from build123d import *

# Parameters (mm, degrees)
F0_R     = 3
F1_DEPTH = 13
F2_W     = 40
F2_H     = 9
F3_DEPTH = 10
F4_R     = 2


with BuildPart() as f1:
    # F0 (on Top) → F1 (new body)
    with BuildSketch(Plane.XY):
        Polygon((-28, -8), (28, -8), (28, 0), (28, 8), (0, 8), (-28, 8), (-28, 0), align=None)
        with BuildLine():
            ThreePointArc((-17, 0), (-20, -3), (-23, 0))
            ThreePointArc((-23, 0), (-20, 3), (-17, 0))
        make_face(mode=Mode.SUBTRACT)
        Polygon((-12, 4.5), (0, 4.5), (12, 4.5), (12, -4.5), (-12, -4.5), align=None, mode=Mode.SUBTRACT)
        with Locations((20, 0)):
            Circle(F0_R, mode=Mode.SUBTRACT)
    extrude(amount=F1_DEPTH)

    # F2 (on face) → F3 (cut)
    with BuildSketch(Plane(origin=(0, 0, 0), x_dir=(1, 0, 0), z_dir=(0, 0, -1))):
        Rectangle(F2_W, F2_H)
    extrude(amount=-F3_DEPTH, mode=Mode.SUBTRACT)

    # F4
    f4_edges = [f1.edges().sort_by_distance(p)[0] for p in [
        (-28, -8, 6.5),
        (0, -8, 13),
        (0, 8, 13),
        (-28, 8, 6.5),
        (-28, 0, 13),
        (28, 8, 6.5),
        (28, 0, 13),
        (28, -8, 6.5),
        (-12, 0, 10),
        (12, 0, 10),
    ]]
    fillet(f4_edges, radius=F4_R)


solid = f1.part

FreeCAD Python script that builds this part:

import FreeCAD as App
import Part
import Sketcher

V = App.Vector
Q = App.Units.Quantity


def edges_at(feature, points):
    """Names of the edges that pass closest to the given points."""
    edges = feature.Shape.Edges
    near = lambda p: min(range(len(edges)), key=lambda i: edges[i].distToShape(Part.Vertex(*p))[0])
    return sorted({f"Edge{near(p) + 1}" for p in points})

doc = App.newDocument("Part")
body = doc.addObject("PartDesign::Body", "Body")

# Sketch on XY plane
sketch1 = body.newObject("Sketcher::SketchObject", "Sketch")
sketch1.AttachmentSupport = (doc.getObject("XY_Plane"), [""])
sketch1.MapMode = "FlatFace"
sketch1.addGeometry([
    Part.LineSegment(V(-28, -8, 0), V(28, -8, 0)),  # 0
    Part.LineSegment(V(28, -8, 0), V(28, 8, 0)),  # 1
    Part.LineSegment(V(28, 8, 0), V(-28, 8, 0)),  # 2
    Part.LineSegment(V(-28, 8, 0), V(-28, -8, 0)),  # 3
    Part.Circle(V(-20, 0, 0), V(0, 0, 1), 3),  # 4
    Part.LineSegment(V(-12, -4.5, 0), V(-12, 4.5, 0)),  # 5
    Part.LineSegment(V(-12, 4.5, 0), V(12, 4.5, 0)),  # 6
    Part.LineSegment(V(12, 4.5, 0), V(12, -4.5, 0)),  # 7
    Part.LineSegment(V(12, -4.5, 0), V(-12, -4.5, 0)),  # 8
    Part.Circle(V(20, 0, 0), V(0, 0, 1), 3),  # 9
], False)
sketch1.addConstraint([
    Sketcher.Constraint("Coincident", 0, 2, 1, 1),
    Sketcher.Constraint("Coincident", 1, 2, 2, 1),
    Sketcher.Constraint("Coincident", 2, 2, 3, 1),
    Sketcher.Constraint("Coincident", 3, 2, 0, 1),
    Sketcher.Constraint("Coincident", 5, 2, 6, 1),
    Sketcher.Constraint("Coincident", 6, 2, 7, 1),
    Sketcher.Constraint("Coincident", 7, 2, 8, 1),
    Sketcher.Constraint("Coincident", 8, 2, 5, 1),
    Sketcher.Constraint("Horizontal", 0),
    Sketcher.Constraint("Vertical", 1),
    Sketcher.Constraint("Horizontal", 2),
    Sketcher.Constraint("Vertical", 3),
    Sketcher.Constraint("Vertical", 5),
    Sketcher.Constraint("Horizontal", 6),
    Sketcher.Constraint("Vertical", 7),
    Sketcher.Constraint("Horizontal", 8),
    Sketcher.Constraint("Equal", 4, 9),
    Sketcher.Constraint("Symmetric", 4, 3, 9, 3, -1, 1),
    Sketcher.Constraint("Symmetric", 0, 2, 2, 2, -1, 1),
    Sketcher.Constraint("Symmetric", 5, 2, 7, 2, -1, 1),
    Sketcher.Constraint("PointOnObject", 4, 3, -1),
    Sketcher.Constraint("Diameter", 4, Q("6 mm")),
    Sketcher.Constraint("DistanceX", 0, 1, 0, 2, Q("56 mm")),
    Sketcher.Constraint("DistanceX", 6, 1, 6, 2, Q("24 mm")),
    Sketcher.Constraint("DistanceY", 1, 1, 1, 2, Q("16 mm")),
    Sketcher.Constraint("DistanceY", 5, 1, 5, 2, Q("9 mm")),
    Sketcher.Constraint("DistanceX", 4, 3, -1, 1, Q("20 mm")),
])
pad1 = body.newObject("PartDesign::Pad", "Pad")
pad1.Profile = sketch1
pad1.Length = 13

# Sketch on XY plane
sketch2 = body.newObject("Sketcher::SketchObject", "Sketch001")
sketch2.AttachmentSupport = (doc.getObject("XY_Plane"), [""])
sketch2.MapMode = "FlatFace"
sketch2.addGeometry([
    Part.LineSegment(V(-20, -4, 0), V(-20, 4, 0)),
    Part.LineSegment(V(-20, 4, 0), V(20, 4, 0)),
    Part.LineSegment(V(20, 4, 0), V(20, -4, 0)),
    Part.LineSegment(V(20, -4, 0), V(-20, -4, 0)),
], False)
sketch2.addConstraint([
    Sketcher.Constraint("Coincident", 0, 2, 1, 1),
    Sketcher.Constraint("Coincident", 1, 2, 2, 1),
    Sketcher.Constraint("Coincident", 2, 2, 3, 1),
    Sketcher.Constraint("Coincident", 3, 2, 0, 1),
    Sketcher.Constraint("Vertical", 0),
    Sketcher.Constraint("Horizontal", 1),
    Sketcher.Constraint("Vertical", 2),
    Sketcher.Constraint("Horizontal", 3),
    Sketcher.Constraint("Symmetric", 0, 2, 2, 2, -1, 1),
    Sketcher.Constraint("DistanceX", 1, 1, 1, 2, Q("40 mm")),
    Sketcher.Constraint("DistanceY", 0, 1, 0, 2, Q("9 mm")),
])
pocket1 = body.newObject("PartDesign::Pocket", "Pocket")
pocket1.Profile = sketch2
pocket1.Length = 10
pocket1.Reversed = True
doc.recompute()

fillet = body.newObject("PartDesign::Fillet", "Fillet")
fillet.Base = (pocket1, edges_at(pocket1, [
    (-28, -8, 6.5),
    (0, -8, 13),
    (0, 8, 13),
    (-28, 8, 6.5),
    (-28, 0, 13),
    (28, 8, 6.5),
    (28, 0, 13),
    (28, -8, 6.5),
    (-12, 0, 10),
    (12, 0, 10),
]))
fillet.Radius = 2

doc.recompute()
